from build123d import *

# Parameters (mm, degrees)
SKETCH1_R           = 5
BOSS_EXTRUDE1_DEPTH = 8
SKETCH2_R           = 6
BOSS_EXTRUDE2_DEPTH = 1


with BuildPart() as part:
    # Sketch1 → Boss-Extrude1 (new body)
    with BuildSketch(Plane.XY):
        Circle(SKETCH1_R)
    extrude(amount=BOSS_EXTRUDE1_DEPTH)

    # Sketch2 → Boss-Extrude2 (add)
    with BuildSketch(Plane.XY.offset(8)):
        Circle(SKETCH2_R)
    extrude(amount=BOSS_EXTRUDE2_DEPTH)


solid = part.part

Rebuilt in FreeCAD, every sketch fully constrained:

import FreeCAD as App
import Part
import Sketcher
from FreeCAD import Vector
Q = App.Units.Quantity

doc = App.newDocument("Part")
params = doc.addObject("Spreadsheet::Sheet", "Params")
for row, (alias, value) in enumerate([
    ("sketch1_diameter", "10 mm"),
    ("pad1_length", "8 mm"),
    ("sketch2_diameter", "12 mm"),
    ("pad2_length", "1 mm"),
], start=1):
    params.set(f"A{row}", alias)
    params.set(f"B{row}", "=" + value)
    params.setAlias(f"B{row}", alias)

body = doc.addObject("PartDesign::Body", "Body")

# Sketch on XY plane
sketch1 = body.newObject("Sketcher::SketchObject", "Sketch")
sketch1.AttachmentSupport = (doc.getObject("XY_Plane"), [""])
sketch1.MapMode = "FlatFace"
sketch1.addGeometry(Part.Circle(Vector(0, 0, 0), Vector(0, 0, 1), 5), False)
sketch1.addConstraint([
    Sketcher.Constraint("Coincident", 0, 3, -1, 1),
    Sketcher.Constraint("Diameter", 0, Q("10 mm")),
])
sketch1.setExpression("Constraints[1]", "Params.sketch1_diameter")
pad1 = body.newObject("PartDesign::Pad", "Pad")
pad1.Profile = sketch1
pad1.setExpression("Length", "Params.pad1_length")

# Sketch on XY plane
sketch2 = body.newObject("Sketcher::SketchObject", "Sketch001")
sketch2.AttachmentSupport = (doc.getObject("XY_Plane"), [""])
sketch2.MapMode = "FlatFace"
sketch2.AttachmentOffset = App.Placement(Vector(0, 0, 8), App.Rotation())
sketch2.addGeometry(Part.Circle(Vector(0, 0, 0), Vector(0, 0, 1), 6), False)
sketch2.addConstraint([
    Sketcher.Constraint("Coincident", 0, 3, -1, 1),
    Sketcher.Constraint("Diameter", 0, Q("12 mm")),
])
sketch2.setExpression("Constraints[1]", "Params.sketch2_diameter")
pad2 = body.newObject("PartDesign::Pad", "Pad001")
pad2.Profile = sketch2
pad2.setExpression("Length", "Params.pad2_length")

doc.recompute()
